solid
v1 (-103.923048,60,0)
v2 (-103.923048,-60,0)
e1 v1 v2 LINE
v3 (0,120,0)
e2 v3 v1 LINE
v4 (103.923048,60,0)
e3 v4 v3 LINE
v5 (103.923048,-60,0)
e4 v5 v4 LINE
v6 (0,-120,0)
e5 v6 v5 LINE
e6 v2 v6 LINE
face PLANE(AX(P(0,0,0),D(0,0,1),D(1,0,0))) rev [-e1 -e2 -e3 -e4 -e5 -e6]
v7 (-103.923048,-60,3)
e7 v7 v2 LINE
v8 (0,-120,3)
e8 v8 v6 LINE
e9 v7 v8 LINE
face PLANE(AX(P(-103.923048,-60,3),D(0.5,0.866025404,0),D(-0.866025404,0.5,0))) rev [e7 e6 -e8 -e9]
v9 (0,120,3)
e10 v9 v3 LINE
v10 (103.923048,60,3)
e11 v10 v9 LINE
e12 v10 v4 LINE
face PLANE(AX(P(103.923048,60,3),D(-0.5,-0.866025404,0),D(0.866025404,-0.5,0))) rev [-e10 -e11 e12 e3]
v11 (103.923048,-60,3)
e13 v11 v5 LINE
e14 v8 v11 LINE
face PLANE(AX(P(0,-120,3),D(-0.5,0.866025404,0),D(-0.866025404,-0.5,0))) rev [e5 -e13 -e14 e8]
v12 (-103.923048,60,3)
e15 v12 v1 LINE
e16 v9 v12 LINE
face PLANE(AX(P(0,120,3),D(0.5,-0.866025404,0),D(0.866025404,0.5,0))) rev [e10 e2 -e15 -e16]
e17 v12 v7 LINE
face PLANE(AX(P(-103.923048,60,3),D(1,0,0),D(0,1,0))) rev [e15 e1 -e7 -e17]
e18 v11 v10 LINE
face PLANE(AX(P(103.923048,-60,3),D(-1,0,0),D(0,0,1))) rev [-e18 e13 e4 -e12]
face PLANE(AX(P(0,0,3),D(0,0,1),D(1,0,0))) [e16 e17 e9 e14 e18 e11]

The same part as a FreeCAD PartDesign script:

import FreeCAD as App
import Part
import Sketcher
Q = App.Units.Quantity


def add_polygon(sketch, points):
    """Adds a closed chain of lines whose ends are joined by coincident constraints."""
    first, n = sketch.GeometryCount, len(points)
    for a, b in zip(points, points[1:] + points[:1]):
        sketch.addGeometry(Part.LineSegment(App.Vector(*a, 0), App.Vector(*b, 0)), False)
    for i in range(n):
        sketch.addConstraint(Sketcher.Constraint("Coincident", first + i, 2, first + (i + 1) % n, 1))

doc = App.newDocument("Part")
body = doc.addObject("PartDesign::Body", "Body")

# Sketch on XY plane
sketch1 = body.newObject("Sketcher::SketchObject", "Sketch")
sketch1.AttachmentSupport = (doc.getObject("XY_Plane"), [""])
sketch1.MapMode = "FlatFace"
add_polygon(sketch1, [(0, 120), (-103.923048, 60), (-103.923048, -60), (0, -120), (103.923048, -60), (103.923048, 60)])  # lines 0-5
sketch1.addConstraint(Sketcher.Constraint("Vertical", 1))
sketch1.addConstraint(Sketcher.Constraint("Vertical", 4))
sketch1.addConstraint(Sketcher.Constraint("Symmetric", 0, 2, 3, 2, -1, 1))
sketch1.addConstraint(Sketcher.Constraint("Symmetric", 2, 2, 5, 2, -1, 1))
sketch1.addConstraint(Sketcher.Constraint("PointOnObject", 2, 2, -2))
sketch1.addConstraint(Sketcher.Constraint("Parallel", 2, 5))
sketch1.addConstraint(Sketcher.Constraint("Horizontal", 1, 2, 3, 2))
sketch1.addConstraint(Sketcher.Constraint("DistanceY", 1, 2, 1, 1, 120.0))
sketch1.addConstraint(Sketcher.Constraint("Angle", 0, Q("-150 deg")))
sketch1.addConstraint(Sketcher.Constraint("Distance", 0, 120.0))
pad1 = body.newObject("PartDesign::Pad", "Pad")
pad1.Profile = sketch1
pad1.Length = 3

doc.recompute()
